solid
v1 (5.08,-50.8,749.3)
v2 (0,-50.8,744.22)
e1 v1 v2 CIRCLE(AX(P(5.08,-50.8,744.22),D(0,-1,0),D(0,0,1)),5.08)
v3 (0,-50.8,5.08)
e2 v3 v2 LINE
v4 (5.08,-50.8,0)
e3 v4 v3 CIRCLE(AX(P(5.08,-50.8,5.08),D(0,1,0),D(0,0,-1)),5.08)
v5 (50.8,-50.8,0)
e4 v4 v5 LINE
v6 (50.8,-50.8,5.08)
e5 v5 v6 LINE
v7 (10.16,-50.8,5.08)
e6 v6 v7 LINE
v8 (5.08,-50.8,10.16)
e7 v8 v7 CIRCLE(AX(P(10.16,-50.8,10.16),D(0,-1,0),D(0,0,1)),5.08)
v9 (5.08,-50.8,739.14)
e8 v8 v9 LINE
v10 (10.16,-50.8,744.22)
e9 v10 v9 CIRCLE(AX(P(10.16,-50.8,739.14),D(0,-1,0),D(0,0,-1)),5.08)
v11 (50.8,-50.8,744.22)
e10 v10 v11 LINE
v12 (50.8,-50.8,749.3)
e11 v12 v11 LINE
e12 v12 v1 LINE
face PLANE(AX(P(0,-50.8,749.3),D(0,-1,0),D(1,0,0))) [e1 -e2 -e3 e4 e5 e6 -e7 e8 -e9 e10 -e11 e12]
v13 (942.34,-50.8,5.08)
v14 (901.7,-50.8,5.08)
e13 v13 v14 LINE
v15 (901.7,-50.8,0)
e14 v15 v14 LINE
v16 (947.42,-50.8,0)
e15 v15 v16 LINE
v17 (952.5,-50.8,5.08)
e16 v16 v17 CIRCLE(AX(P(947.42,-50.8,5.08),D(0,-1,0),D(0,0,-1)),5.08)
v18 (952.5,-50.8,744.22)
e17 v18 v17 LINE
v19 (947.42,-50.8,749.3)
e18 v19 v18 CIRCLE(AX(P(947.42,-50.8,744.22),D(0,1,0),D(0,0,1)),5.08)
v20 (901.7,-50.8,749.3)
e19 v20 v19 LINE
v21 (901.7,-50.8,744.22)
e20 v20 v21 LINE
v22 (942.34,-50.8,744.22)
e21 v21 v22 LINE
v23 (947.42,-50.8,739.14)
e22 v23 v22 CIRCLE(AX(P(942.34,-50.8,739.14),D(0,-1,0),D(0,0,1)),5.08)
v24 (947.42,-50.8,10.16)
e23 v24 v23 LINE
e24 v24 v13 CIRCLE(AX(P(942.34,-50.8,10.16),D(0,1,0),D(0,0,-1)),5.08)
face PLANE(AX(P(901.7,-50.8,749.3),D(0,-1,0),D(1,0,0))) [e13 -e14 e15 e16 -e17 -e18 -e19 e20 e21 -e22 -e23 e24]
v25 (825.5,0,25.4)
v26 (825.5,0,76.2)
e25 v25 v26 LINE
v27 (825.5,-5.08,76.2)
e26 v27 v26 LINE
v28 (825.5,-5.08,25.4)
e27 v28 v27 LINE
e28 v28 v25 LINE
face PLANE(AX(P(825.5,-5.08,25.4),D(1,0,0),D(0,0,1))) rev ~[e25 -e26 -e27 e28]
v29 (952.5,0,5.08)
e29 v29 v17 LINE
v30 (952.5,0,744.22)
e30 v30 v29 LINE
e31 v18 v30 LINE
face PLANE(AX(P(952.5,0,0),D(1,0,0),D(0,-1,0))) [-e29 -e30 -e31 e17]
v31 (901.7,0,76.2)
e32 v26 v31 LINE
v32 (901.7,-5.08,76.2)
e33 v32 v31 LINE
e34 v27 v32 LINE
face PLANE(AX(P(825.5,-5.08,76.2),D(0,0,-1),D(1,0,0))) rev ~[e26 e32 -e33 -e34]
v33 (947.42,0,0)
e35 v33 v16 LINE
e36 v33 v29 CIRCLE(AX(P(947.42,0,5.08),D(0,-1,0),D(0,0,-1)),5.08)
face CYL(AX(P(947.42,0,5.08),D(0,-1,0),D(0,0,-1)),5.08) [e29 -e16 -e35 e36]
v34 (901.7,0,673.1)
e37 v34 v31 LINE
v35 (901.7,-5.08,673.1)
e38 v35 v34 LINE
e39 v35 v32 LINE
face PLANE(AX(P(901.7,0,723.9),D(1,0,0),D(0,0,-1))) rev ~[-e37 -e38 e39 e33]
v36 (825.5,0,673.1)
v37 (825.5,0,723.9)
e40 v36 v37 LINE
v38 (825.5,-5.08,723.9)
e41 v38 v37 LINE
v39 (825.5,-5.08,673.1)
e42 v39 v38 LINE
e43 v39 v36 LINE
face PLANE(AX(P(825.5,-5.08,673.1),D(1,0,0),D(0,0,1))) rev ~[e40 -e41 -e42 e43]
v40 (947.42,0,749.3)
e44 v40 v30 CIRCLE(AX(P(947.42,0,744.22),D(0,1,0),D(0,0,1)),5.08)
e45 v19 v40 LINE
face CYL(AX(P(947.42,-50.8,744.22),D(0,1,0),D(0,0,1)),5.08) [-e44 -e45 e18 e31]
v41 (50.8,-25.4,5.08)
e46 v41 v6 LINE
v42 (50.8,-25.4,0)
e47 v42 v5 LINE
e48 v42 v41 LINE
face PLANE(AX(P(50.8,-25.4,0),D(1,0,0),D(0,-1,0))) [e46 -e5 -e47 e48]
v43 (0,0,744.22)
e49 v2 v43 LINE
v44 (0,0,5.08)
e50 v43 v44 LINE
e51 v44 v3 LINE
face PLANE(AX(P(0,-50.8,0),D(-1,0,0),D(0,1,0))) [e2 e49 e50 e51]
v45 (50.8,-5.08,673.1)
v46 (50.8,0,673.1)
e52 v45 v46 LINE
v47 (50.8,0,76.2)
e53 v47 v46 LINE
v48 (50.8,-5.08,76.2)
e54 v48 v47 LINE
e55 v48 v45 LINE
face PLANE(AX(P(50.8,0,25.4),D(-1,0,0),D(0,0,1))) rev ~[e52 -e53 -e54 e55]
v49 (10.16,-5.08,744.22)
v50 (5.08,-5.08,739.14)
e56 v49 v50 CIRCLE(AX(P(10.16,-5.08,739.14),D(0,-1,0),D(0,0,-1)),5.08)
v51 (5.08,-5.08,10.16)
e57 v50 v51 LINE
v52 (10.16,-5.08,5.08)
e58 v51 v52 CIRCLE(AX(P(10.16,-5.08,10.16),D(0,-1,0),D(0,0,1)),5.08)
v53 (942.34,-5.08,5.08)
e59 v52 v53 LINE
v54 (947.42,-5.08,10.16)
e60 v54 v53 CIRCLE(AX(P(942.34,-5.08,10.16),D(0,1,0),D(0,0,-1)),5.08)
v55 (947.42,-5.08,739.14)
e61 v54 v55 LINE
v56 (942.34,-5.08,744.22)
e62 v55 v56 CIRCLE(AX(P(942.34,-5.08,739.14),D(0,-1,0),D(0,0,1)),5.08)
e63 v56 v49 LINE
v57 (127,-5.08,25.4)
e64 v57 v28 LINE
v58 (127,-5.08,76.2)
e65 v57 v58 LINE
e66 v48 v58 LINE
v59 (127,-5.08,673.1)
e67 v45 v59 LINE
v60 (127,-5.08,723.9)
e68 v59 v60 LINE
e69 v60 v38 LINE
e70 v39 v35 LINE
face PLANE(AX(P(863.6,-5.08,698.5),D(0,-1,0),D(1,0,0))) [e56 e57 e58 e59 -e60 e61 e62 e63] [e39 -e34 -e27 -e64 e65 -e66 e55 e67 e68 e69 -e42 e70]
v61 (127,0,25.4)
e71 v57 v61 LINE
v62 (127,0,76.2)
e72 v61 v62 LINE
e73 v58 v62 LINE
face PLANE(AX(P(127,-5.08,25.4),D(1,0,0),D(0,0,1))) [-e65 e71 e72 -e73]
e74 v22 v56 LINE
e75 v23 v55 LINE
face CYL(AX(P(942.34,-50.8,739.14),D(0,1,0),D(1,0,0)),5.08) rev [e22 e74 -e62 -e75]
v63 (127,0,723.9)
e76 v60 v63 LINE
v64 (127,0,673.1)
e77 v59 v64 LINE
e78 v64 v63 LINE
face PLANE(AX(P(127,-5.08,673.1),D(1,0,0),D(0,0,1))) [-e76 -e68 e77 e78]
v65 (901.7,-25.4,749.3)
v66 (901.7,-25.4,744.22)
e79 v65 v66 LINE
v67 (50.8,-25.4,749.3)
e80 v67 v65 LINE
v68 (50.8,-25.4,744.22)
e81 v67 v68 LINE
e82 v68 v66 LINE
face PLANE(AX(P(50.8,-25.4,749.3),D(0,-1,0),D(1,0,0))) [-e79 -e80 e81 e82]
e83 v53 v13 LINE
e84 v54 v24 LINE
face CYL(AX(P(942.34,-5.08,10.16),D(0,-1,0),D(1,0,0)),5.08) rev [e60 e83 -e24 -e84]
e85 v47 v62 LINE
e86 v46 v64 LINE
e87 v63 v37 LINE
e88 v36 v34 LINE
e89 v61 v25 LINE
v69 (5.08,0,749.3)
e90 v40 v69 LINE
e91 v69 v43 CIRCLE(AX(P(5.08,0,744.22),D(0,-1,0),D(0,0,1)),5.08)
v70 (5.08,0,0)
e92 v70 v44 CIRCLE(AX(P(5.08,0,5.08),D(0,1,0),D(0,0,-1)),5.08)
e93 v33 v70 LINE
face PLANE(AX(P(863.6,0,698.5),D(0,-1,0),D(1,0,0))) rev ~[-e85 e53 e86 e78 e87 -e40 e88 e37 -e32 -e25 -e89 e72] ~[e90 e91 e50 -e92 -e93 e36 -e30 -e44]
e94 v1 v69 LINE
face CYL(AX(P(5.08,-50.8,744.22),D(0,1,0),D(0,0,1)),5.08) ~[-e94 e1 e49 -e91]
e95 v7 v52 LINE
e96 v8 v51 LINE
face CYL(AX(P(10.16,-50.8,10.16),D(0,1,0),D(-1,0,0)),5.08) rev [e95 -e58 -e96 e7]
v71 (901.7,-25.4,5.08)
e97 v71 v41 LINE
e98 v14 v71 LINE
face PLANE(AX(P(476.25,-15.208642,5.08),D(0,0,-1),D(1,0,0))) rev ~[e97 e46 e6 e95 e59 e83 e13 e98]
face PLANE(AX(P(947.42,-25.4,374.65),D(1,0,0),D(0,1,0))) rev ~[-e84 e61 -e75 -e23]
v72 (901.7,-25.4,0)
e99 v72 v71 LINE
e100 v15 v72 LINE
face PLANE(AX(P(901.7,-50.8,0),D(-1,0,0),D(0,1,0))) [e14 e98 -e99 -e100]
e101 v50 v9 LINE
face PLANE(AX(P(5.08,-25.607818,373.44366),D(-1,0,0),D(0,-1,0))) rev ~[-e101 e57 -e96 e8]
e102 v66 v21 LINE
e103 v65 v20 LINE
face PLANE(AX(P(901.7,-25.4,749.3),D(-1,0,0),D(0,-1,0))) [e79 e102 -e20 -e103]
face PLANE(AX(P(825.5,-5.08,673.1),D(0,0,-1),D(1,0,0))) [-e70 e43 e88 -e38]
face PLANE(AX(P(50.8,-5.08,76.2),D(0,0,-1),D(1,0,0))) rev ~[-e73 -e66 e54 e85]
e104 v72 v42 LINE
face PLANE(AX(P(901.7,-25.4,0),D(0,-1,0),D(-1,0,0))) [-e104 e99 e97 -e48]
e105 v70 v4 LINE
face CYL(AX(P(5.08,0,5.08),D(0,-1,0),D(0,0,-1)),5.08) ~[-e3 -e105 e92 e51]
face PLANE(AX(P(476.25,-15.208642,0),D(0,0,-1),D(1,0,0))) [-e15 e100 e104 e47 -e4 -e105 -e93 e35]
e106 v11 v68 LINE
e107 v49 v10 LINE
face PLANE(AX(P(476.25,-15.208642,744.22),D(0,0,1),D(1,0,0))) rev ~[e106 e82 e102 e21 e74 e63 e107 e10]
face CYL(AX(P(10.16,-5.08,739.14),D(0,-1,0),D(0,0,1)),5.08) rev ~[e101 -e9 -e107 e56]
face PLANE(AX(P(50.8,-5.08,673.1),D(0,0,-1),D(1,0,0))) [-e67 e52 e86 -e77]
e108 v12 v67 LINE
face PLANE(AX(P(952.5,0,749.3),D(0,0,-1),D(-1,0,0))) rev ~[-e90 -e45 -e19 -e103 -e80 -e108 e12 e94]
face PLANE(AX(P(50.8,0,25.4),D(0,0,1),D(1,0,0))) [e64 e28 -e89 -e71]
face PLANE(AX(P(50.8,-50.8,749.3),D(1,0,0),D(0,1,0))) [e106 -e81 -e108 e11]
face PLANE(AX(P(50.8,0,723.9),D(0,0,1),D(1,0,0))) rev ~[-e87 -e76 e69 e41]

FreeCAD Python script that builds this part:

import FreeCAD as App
import Part
import Sketcher
Q = App.Units.Quantity


def edges_at(feature, points):
    """Names of the edges that pass closest to the given points."""
    edges = feature.Shape.Edges
    near = lambda p: min(range(len(edges)), key=lambda i: edges[i].distToShape(Part.Vertex(*p))[0])
    return sorted({f"Edge{near(p) + 1}" for p in points})

doc = App.newDocument("Part")
params = doc.addObject("Spreadsheet::Sheet", "Params")
for row, (alias, value) in enumerate([
    ("sketch1_width", "37.5 in"),
    ("sketch1_width2", "33.5 in"),
    ("sketch1_height", "29.5 in"),
    ("sketch1_height2", "27.5 in"),
    ("pad1_length", "0.2 in"),
    ("sketch2_width", "2 in"),
    ("sketch2_height", "1 in"),
    ("sketch2_width2", "37.5 in"),
    ("pad2_length", "0.2 in"),
    ("sketch3_width", "2 in"),
    ("sketch3_height", "1 in"),
    ("sketch3_width2", "37.5 in"),
    ("pad3_length", "0.2 in"),
    ("sketch4_length", "2 in"),
    ("sketch4_height", "29.3 in"),
    ("sketch4_height2", "29.5 in"),
    ("pad4_length", "0.2 in"),
    ("sketch5_width", "2 in"),
    ("sketch5_height", "29.5 in"),
    ("pad5_length", "0.2 in"),
    ("fillet_radius", "0.2 in"),
    ("sketch6_width", "3 in"),
    ("sketch6_height", "2 in"),
    ("pad6_length", "0.2 in"),
], start=1):
    params.set(f"A{row}", alias)
    params.set(f"B{row}", "=" + value)
    params.setAlias(f"B{row}", alias)

body = doc.addObject("PartDesign::Body", "Body")

sketch1 = doc.addObject("Sketcher::SketchObject", "Sketch")
body.addObject(sketch1)
sketch1.AttachmentSupport = (doc.XZ_Plane, [""])
sketch1.MapMode = "FlatFace"
sketch1.addGeometry([
    Part.LineSegment(App.Vector(0, 0, 0), App.Vector(952, 0, 0)),
    Part.LineSegment(App.Vector(952, 0, 0), App.Vector(952, 749, 0)),
    Part.LineSegment(App.Vector(952, 749, 0), App.Vector(0, 749, 0)),
    Part.LineSegment(App.Vector(0, 749, 0), App.Vector(0, 0, 0)),
    Part.LineSegment(App.Vector(902, 25, 0), App.Vector(51, 25, 0)),
    Part.LineSegment(App.Vector(51, 25, 0), App.Vector(51, 724, 0)),
    Part.LineSegment(App.Vector(51, 724, 0), App.Vector(902, 724, 0)),
    Part.LineSegment(App.Vector(902, 724, 0), App.Vector(902, 25, 0)),
], False)
sketch1.addConstraint([
    Sketcher.Constraint("Coincident", 0, 2, 1, 1),
    Sketcher.Constraint("Coincident", 1, 2, 2, 1),
    Sketcher.Constraint("Coincident", 2, 2, 3, 1),
    Sketcher.Constraint("Coincident", 3, 2, 0, 1),
    Sketcher.Constraint("Coincident", 4, 2, 5, 1),
    Sketcher.Constraint("Coincident", 5, 2, 6, 1),
    Sketcher.Constraint("Coincident", 6, 2, 7, 1),
    Sketcher.Constraint("Coincident", 7, 2, 4, 1),
    Sketcher.Constraint("Horizontal", 0),
    Sketcher.Constraint("Vertical", 1),
    Sketcher.Constraint("Horizontal", 2),
    Sketcher.Constraint("Vertical", 3),
    Sketcher.Constraint("Horizontal", 4),
    Sketcher.Constraint("Vertical", 5),
    Sketcher.Constraint("Horizontal", 6),
    Sketcher.Constraint("Vertical", 7),
    Sketcher.Constraint("Coincident", 3, 2, -1, 1),
    Sketcher.Constraint("DistanceX", 0, 1, 0, 2, Q("37.5 in")),
    Sketcher.Constraint("DistanceX", 4, 2, 4, 1, Q("33.5 in")),
    Sketcher.Constraint("DistanceY", 1, 1, 1, 2, Q("29.5 in")),
    Sketcher.Constraint("DistanceY", 5, 1, 5, 2, Q("27.5 in")),
    Sketcher.Constraint("DistanceX", -1, 1, 4, 2, Q("2 in")),
    Sketcher.Constraint("DistanceY", -1, 1, 4, 2, Q("1 in")),
])
sketch1.setExpression("Constraints[17]", "Params.sketch1_width")
sketch1.setExpression("Constraints[18]", "Params.sketch1_width2")
sketch1.setExpression("Constraints[19]", "Params.sketch1_height")
sketch1.setExpression("Constraints[20]", "Params.sketch1_height2")
pad1 = doc.addObject("PartDesign::Pad", "Pad")
body.addObject(pad1)
pad1.Profile = sketch1
pad1.setExpression("Length", "Params.pad1_length")

sketch2 = doc.addObject("Sketcher::SketchObject", "Sketch001")
body.addObject(sketch2)
sketch2.AttachmentSupport = (doc.XY_Plane, [""])
sketch2.MapMode = "FlatFace"
sketch2.addGeometry([
    Part.LineSegment(App.Vector(0, -51, 0), App.Vector(0, 0, 0)),
    Part.LineSegment(App.Vector(0, 0, 0), App.Vector(952, 0, 0)),
    Part.LineSegment(App.Vector(952, 0, 0), App.Vector(952, -51, 0)),
    Part.LineSegment(App.Vector(952, -51, 0), App.Vector(902, -51, 0)),
    Part.LineSegment(App.Vector(902, -51, 0), App.Vector(902, -25, 0)),
    Part.LineSegment(App.Vector(902, -25, 0), App.Vector(51, -25, 0)),
    Part.LineSegment(App.Vector(51, -25, 0), App.Vector(51, -51, 0)),
    Part.LineSegment(App.Vector(51, -51, 0), App.Vector(0, -51, 0)),
], False)
sketch2.addConstraint([
    Sketcher.Constraint("Coincident", 0, 2, 1, 1),
    Sketcher.Constraint("Coincident", 1, 2, 2, 1),
    Sketcher.Constraint("Coincident", 2, 2, 3, 1),
    Sketcher.Constraint("Coincident", 3, 2, 4, 1),
    Sketcher.Constraint("Coincident", 4, 2, 5, 1),
    Sketcher.Constraint("Coincident", 5, 2, 6, 1),
    Sketcher.Constraint("Coincident", 6, 2, 7, 1),
    Sketcher.Constraint("Coincident", 7, 2, 0, 1),
    Sketcher.Constraint("Vertical", 0),
    Sketcher.Constraint("Horizontal", 1),
    Sketcher.Constraint("Vertical", 2),
    Sketcher.Constraint("Horizontal", 3),
    Sketcher.Constraint("Vertical", 4),
    Sketcher.Constraint("Horizontal", 5),
    Sketcher.Constraint("Vertical", 6),
    Sketcher.Constraint("Horizontal", 7),
    Sketcher.Constraint("Coincident", 0, 2, -1, 1),
    Sketcher.Constraint("Horizontal", 3, 2, 6, 2),
    Sketcher.Constraint("Equal", 3, 7),
    Sketcher.Constraint("Equal", 7, 0),
    Sketcher.Constraint("DistanceX", 3, 2, 3, 1, Q("2 in")),
    Sketcher.Constraint("DistanceY", 4, 1, 4, 2, Q("1 in")),
    Sketcher.Constraint("DistanceX", 1, 1, 1, 2, Q("37.5 in")),
])
sketch2.setExpression("Constraints[20]", "Params.sketch2_width")
sketch2.setExpression("Constraints[21]", "Params.sketch2_height")
sketch2.setExpression("Constraints[22]", "Params.sketch2_width2")
pad2 = doc.addObject("PartDesign::Pad", "Pad001")
body.addObject(pad2)
pad2.Profile = sketch2
pad2.setExpression("Length", "Params.pad2_length")

sketch3 = doc.addObject("Sketcher::SketchObject", "Sketch002")
body.addObject(sketch3)
sketch3.AttachmentSupport = (doc.XY_Plane, [""])
sketch3.MapMode = "FlatFace"
sketch3.AttachmentOffset = App.Placement(App.Vector(0, 0, 29.5 * 25.4), App.Rotation())
sketch3.addGeometry([
    Part.LineSegment(App.Vector(952, 0, 0), App.Vector(0, 0, 0)),
    Part.LineSegment(App.Vector(0, 0, 0), App.Vector(0, -51, 0)),
    Part.LineSegment(App.Vector(0, -51, 0), App.Vector(51, -51, 0)),
    Part.LineSegment(App.Vector(51, -51, 0), App.Vector(51, -25, 0)),
    Part.LineSegment(App.Vector(51, -25, 0), App.Vector(902, -25, 0)),
    Part.LineSegment(App.Vector(902, -25, 0), App.Vector(902, -51, 0)),
    Part.LineSegment(App.Vector(902, -51, 0), App.Vector(952, -51, 0)),
    Part.LineSegment(App.Vector(952, -51, 0), App.Vector(952, 0, 0)),
], False)
sketch3.addConstraint([
    Sketcher.Constraint("Coincident", 0, 2, 1, 1),
    Sketcher.Constraint("Coincident", 1, 2, 2, 1),
    Sketcher.Constraint("Coincident", 2, 2, 3, 1),
    Sketcher.Constraint("Coincident", 3, 2, 4, 1),
    Sketcher.Constraint("Coincident", 4, 2, 5, 1),
    Sketcher.Constraint("Coincident", 5, 2, 6, 1),
    Sketcher.Constraint("Coincident", 6, 2, 7, 1),
    Sketcher.Constraint("Coincident", 7, 2, 0, 1),
    Sketcher.Constraint("Horizontal", 0),
    Sketcher.Constraint("Vertical", 1),
    Sketcher.Constraint("Horizontal", 2),
    Sketcher.Constraint("Vertical", 3),
    Sketcher.Constraint("Horizontal", 4),
    Sketcher.Constraint("Vertical", 5),
    Sketcher.Constraint("Horizontal", 6),
    Sketcher.Constraint("Vertical", 7),
    Sketcher.Constraint("Coincident", 0, 2, -1, 1),
    Sketcher.Constraint("Horizontal", 2, 2, 5, 2),
    Sketcher.Constraint("Equal", 2, 6),
    Sketcher.Constraint("Equal", 6, 1),
    Sketcher.Constraint("DistanceX", 2, 1, 2, 2, Q("2 in")),
    Sketcher.Constraint("DistanceY", 3, 1, 3, 2, Q("1 in")),
    Sketcher.Constraint("DistanceX", 0, 2, 0, 1, Q("37.5 in")),
])
sketch3.setExpression("Constraints[20]", "Params.sketch3_width")
sketch3.setExpression("Constraints[21]", "Params.sketch3_height")
sketch3.setExpression("Constraints[22]", "Params.sketch3_width2")
pad3 = doc.addObject("PartDesign::Pad", "Pad002")
body.addObject(pad3)
pad3.Profile = sketch3
pad3.setExpression("Length", "Params.pad3_length")
pad3.Reversed = True

sketch4 = doc.addObject("Sketcher::SketchObject", "Sketch003")
body.addObject(sketch4)
sketch4.AttachmentSupport = (doc.YZ_Plane, [""])
sketch4.MapMode = "FlatFace"
sketch4.addGeometry([
    Part.LineSegment(App.Vector(0, 744, 0), App.Vector(0, 0, 0)),
    Part.LineSegment(App.Vector(0, 0, 0), App.Vector(-51, 0, 0)),
    Part.LineSegment(App.Vector(-51, 0, 0), App.Vector(-51, 749, 0)),
    Part.LineSegment(App.Vector(-51, 749, 0), App.Vector(0, 744, 0)),
], False)
sketch4.addConstraint([
    Sketcher.Constraint("Coincident", 0, 2, 1, 1),
    Sketcher.Constraint("Coincident", 1, 2, 2, 1),
    Sketcher.Constraint("Coincident", 2, 2, 3, 1),
    Sketcher.Constraint("Coincident", 3, 2, 0, 1),
    Sketcher.Constraint("Vertical", 0),
    Sketcher.Constraint("Horizontal", 1),
    Sketcher.Constraint("Vertical", 2),
    Sketcher.Constraint("PointOnObject", 0, 2, -1),
    Sketcher.Constraint("Distance", 3, Q("2 in")),
    Sketcher.Constraint("DistanceY", 0, 2, 0, 1, Q("29.3 in")),
    Sketcher.Constraint("DistanceY", 2, 1, 2, 2, Q("29.5 in")),
    Sketcher.Constraint("DistanceX", 1, 2, -1, 1, Q("2 in")),
])
sketch4.setExpression("Constraints[8]", "Params.sketch4_length")
sketch4.setExpression("Constraints[9]", "Params.sketch4_height")
sketch4.setExpression("Constraints[10]", "Params.sketch4_height2")
pad4 = doc.addObject("PartDesign::Pad", "Pad003")
body.addObject(pad4)
pad4.Profile = sketch4
pad4.setExpression("Length", "Params.pad4_length")

sketch5 = doc.addObject("Sketcher::SketchObject", "Sketch004")
body.addObject(sketch5)
sketch5.AttachmentSupport = (doc.YZ_Plane, [""])
sketch5.MapMode = "FlatFace"
sketch5.AttachmentOffset = App.Placement(App.Vector(0, 0, 37.5 * 25.4), App.Rotation())
sketch5.addGeometry([
    Part.LineSegment(App.Vector(-51, 749, 0), App.Vector(-51, 0, 0)),
    Part.LineSegment(App.Vector(-51, 0, 0), App.Vector(0, 0, 0)),
    Part.LineSegment(App.Vector(0, 0, 0), App.Vector(0, 749, 0)),
    Part.LineSegment(App.Vector(0, 749, 0), App.Vector(-51, 749, 0)),
], False)
sketch5.addConstraint([
    Sketcher.Constraint("Coincident", 0, 2, 1, 1),
    Sketcher.Constraint("Coincident", 1, 2, 2, 1),
    Sketcher.Constraint("Coincident", 2, 2, 3, 1),
    Sketcher.Constraint("Coincident", 3, 2, 0, 1),
    Sketcher.Constraint("Vertical", 0),
    Sketcher.Constraint("Horizontal", 1),
    Sketcher.Constraint("Vertical", 2),
    Sketcher.Constraint("Horizontal", 3),
    Sketcher.Constraint("Coincident", 1, 2, -1, 1),
    Sketcher.Constraint("DistanceX", 1, 1, 1, 2, Q("2 in")),
    Sketcher.Constraint("DistanceY", 0, 2, 0, 1, Q("29.5 in")),
])
sketch5.setExpression("Constraints[9]", "Params.sketch5_width")
sketch5.setExpression("Constraints[10]", "Params.sketch5_height")
pad5 = doc.addObject("PartDesign::Pad", "Pad004")
body.addObject(pad5)
pad5.Profile = sketch5
pad5.setExpression("Length", "Params.pad5_length")
pad5.Reversed = True
doc.recompute()

fillet = doc.addObject("PartDesign::Fillet", "Fillet")
body.addObject(fillet)
fillet.Base = (pad5, edges_at(pad5, [
    (0, -25.4, 0),
    (5.08, -27.94, 5.08),
    (5.08, -27.94, 744.22),
    (0, -25.4, 749.3),
    (952.5, -25.4, 749.3),
    (947.42, -27.94, 744.22),
    (952.5, -25.4, 0),
    (947.42, -27.94, 5.08),
]))
fillet.setExpression("Radius", "Params.fillet_radius")

sketch6 = doc.addObject("Sketcher::SketchObject", "Sketch005")
body.addObject(sketch6)
sketch6.AttachmentSupport = (doc.XZ_Plane, [""])
sketch6.MapMode = "FlatFace"
sketch6.AttachmentOffset = App.Placement(App.Vector(0, 0, 0.2 * 25.4), App.Rotation())
sketch6.addGeometry([
    Part.LineSegment(App.Vector(826, 724, 0), App.Vector(826, 673, 0)),
    Part.LineSegment(App.Vector(826, 673, 0), App.Vector(902, 673, 0)),
    Part.LineSegment(App.Vector(902, 673, 0), App.Vector(902, 724, 0)),
    Part.LineSegment(App.Vector(902, 724, 0), App.Vector(826, 724, 0)),
    Part.LineSegment(App.Vector(826, 76, 0), App.Vector(826, 25, 0)),
    Part.LineSegment(App.Vector(826, 25, 0), App.Vector(902, 25, 0)),
    Part.LineSegment(App.Vector(902, 25, 0), App.Vector(902, 76, 0)),
    Part.LineSegment(App.Vector(902, 76, 0), App.Vector(826, 76, 0)),
    Part.LineSegment(App.Vector(51, 76, 0), App.Vector(51, 25, 0)),
    Part.LineSegment(App.Vector(51, 25, 0), App.Vector(127, 25, 0)),
    Part.LineSegment(App.Vector(127, 25, 0), App.Vector(127, 76, 0)),
    Part.LineSegment(App.Vector(127, 76, 0), App.Vector(51, 76, 0)),
    Part.LineSegment(App.Vector(51, 724, 0), App.Vector(51, 673, 0)),
    Part.LineSegment(App.Vector(51, 673, 0), App.Vector(127, 673, 0)),
    Part.LineSegment(App.Vector(127, 673, 0), App.Vector(127, 724, 0)),
    Part.LineSegment(App.Vector(127, 724, 0), App.Vector(51, 724, 0)),
], False)
sketch6.addConstraint([
    Sketcher.Constraint("Coincident", 0, 2, 1, 1),
    Sketcher.Constraint("Coincident", 1, 2, 2, 1),
    Sketcher.Constraint("Coincident", 2, 2, 3, 1),
    Sketcher.Constraint("Coincident", 3, 2, 0, 1),
    Sketcher.Constraint("Coincident", 4, 2, 5, 1),
    Sketcher.Constraint("Coincident", 5, 2, 6, 1),
    Sketcher.Constraint("Coincident", 6, 2, 7, 1),
    Sketcher.Constraint("Coincident", 7, 2, 4, 1),
    Sketcher.Constraint("Coincident", 8, 2, 9, 1),
    Sketcher.Constraint("Coincident", 9, 2, 10, 1),
    Sketcher.Constraint("Coincident", 10, 2, 11, 1),
    Sketcher.Constraint("Coincident", 11, 2, 8, 1),
    Sketcher.Constraint("Coincident", 12, 2, 13, 1),
    Sketcher.Constraint("Coincident", 13, 2, 14, 1),
    Sketcher.Constraint("Coincident", 14, 2, 15, 1),
    Sketcher.Constraint("Coincident", 15, 2, 12, 1),
    Sketcher.Constraint("Vertical", 0),
    Sketcher.Constraint("Horizontal", 1),
    Sketcher.Constraint("Vertical", 2),
    Sketcher.Constraint("Horizontal", 3),
    Sketcher.Constraint("Vertical", 4),
    Sketcher.Constraint("Horizontal", 5),
    Sketcher.Constraint("Vertical", 6),
    Sketcher.Constraint("Horizontal", 7),
    Sketcher.Constraint("Vertical", 8),
    Sketcher.Constraint("Horizontal", 9),
    Sketcher.Constraint("Vertical", 10),
    Sketcher.Constraint("Horizontal", 11),
    Sketcher.Constraint("Vertical", 12),
    Sketcher.Constraint("Horizontal", 13),
    Sketcher.Constraint("Vertical", 14),
    Sketcher.Constraint("Horizontal", 15),
    Sketcher.Constraint("Horizontal", 5, 2, 8, 2),
    Sketcher.Constraint("Horizontal", 7, 2, 10, 2),
    Sketcher.Constraint("Horizontal", 1, 2, 12, 2),
    Sketcher.Constraint("Horizontal", 3, 2, 14, 2),
    Sketcher.Constraint("Vertical", 3, 2, 4, 2),
    Sketcher.Constraint("Vertical", 2, 2, 5, 2),
    Sketcher.Constraint("Vertical", 11, 2, 12, 2),
    Sketcher.Constraint("Vertical", 10, 2, 13, 2),
    Sketcher.Constraint("Equal", 7, 9),
    Sketcher.Constraint("Equal", 2, 4),
    Sketcher.Constraint("DistanceX", 1, 1, 1, 2, Q("3 in")),
    Sketcher.Constraint("DistanceY", 0, 2, 0, 1, Q("2 in")),
    Sketcher.Constraint("DistanceY", -1, 1, 4, 2, Q("1 in")),
    Sketcher.Constraint("DistanceX", -1, 1, 8, 2, Q("2 in")),
    Sketcher.Constraint("DistanceX", -1, 1, 0, 2, Q("32.5 in")),
    Sketcher.Constraint("DistanceY", -1, 1, 0, 2, Q("26.5 in")),
])
sketch6.setExpression("Constraints[42]", "Params.sketch6_width")
sketch6.setExpression("Constraints[43]", "Params.sketch6_height")
pad6 = doc.addObject("PartDesign::Pad", "Pad005")
body.addObject(pad6)
pad6.Profile = sketch6
pad6.setExpression("Length", "Params.pad6_length")
pad6.Reversed = True

doc.recompute()
